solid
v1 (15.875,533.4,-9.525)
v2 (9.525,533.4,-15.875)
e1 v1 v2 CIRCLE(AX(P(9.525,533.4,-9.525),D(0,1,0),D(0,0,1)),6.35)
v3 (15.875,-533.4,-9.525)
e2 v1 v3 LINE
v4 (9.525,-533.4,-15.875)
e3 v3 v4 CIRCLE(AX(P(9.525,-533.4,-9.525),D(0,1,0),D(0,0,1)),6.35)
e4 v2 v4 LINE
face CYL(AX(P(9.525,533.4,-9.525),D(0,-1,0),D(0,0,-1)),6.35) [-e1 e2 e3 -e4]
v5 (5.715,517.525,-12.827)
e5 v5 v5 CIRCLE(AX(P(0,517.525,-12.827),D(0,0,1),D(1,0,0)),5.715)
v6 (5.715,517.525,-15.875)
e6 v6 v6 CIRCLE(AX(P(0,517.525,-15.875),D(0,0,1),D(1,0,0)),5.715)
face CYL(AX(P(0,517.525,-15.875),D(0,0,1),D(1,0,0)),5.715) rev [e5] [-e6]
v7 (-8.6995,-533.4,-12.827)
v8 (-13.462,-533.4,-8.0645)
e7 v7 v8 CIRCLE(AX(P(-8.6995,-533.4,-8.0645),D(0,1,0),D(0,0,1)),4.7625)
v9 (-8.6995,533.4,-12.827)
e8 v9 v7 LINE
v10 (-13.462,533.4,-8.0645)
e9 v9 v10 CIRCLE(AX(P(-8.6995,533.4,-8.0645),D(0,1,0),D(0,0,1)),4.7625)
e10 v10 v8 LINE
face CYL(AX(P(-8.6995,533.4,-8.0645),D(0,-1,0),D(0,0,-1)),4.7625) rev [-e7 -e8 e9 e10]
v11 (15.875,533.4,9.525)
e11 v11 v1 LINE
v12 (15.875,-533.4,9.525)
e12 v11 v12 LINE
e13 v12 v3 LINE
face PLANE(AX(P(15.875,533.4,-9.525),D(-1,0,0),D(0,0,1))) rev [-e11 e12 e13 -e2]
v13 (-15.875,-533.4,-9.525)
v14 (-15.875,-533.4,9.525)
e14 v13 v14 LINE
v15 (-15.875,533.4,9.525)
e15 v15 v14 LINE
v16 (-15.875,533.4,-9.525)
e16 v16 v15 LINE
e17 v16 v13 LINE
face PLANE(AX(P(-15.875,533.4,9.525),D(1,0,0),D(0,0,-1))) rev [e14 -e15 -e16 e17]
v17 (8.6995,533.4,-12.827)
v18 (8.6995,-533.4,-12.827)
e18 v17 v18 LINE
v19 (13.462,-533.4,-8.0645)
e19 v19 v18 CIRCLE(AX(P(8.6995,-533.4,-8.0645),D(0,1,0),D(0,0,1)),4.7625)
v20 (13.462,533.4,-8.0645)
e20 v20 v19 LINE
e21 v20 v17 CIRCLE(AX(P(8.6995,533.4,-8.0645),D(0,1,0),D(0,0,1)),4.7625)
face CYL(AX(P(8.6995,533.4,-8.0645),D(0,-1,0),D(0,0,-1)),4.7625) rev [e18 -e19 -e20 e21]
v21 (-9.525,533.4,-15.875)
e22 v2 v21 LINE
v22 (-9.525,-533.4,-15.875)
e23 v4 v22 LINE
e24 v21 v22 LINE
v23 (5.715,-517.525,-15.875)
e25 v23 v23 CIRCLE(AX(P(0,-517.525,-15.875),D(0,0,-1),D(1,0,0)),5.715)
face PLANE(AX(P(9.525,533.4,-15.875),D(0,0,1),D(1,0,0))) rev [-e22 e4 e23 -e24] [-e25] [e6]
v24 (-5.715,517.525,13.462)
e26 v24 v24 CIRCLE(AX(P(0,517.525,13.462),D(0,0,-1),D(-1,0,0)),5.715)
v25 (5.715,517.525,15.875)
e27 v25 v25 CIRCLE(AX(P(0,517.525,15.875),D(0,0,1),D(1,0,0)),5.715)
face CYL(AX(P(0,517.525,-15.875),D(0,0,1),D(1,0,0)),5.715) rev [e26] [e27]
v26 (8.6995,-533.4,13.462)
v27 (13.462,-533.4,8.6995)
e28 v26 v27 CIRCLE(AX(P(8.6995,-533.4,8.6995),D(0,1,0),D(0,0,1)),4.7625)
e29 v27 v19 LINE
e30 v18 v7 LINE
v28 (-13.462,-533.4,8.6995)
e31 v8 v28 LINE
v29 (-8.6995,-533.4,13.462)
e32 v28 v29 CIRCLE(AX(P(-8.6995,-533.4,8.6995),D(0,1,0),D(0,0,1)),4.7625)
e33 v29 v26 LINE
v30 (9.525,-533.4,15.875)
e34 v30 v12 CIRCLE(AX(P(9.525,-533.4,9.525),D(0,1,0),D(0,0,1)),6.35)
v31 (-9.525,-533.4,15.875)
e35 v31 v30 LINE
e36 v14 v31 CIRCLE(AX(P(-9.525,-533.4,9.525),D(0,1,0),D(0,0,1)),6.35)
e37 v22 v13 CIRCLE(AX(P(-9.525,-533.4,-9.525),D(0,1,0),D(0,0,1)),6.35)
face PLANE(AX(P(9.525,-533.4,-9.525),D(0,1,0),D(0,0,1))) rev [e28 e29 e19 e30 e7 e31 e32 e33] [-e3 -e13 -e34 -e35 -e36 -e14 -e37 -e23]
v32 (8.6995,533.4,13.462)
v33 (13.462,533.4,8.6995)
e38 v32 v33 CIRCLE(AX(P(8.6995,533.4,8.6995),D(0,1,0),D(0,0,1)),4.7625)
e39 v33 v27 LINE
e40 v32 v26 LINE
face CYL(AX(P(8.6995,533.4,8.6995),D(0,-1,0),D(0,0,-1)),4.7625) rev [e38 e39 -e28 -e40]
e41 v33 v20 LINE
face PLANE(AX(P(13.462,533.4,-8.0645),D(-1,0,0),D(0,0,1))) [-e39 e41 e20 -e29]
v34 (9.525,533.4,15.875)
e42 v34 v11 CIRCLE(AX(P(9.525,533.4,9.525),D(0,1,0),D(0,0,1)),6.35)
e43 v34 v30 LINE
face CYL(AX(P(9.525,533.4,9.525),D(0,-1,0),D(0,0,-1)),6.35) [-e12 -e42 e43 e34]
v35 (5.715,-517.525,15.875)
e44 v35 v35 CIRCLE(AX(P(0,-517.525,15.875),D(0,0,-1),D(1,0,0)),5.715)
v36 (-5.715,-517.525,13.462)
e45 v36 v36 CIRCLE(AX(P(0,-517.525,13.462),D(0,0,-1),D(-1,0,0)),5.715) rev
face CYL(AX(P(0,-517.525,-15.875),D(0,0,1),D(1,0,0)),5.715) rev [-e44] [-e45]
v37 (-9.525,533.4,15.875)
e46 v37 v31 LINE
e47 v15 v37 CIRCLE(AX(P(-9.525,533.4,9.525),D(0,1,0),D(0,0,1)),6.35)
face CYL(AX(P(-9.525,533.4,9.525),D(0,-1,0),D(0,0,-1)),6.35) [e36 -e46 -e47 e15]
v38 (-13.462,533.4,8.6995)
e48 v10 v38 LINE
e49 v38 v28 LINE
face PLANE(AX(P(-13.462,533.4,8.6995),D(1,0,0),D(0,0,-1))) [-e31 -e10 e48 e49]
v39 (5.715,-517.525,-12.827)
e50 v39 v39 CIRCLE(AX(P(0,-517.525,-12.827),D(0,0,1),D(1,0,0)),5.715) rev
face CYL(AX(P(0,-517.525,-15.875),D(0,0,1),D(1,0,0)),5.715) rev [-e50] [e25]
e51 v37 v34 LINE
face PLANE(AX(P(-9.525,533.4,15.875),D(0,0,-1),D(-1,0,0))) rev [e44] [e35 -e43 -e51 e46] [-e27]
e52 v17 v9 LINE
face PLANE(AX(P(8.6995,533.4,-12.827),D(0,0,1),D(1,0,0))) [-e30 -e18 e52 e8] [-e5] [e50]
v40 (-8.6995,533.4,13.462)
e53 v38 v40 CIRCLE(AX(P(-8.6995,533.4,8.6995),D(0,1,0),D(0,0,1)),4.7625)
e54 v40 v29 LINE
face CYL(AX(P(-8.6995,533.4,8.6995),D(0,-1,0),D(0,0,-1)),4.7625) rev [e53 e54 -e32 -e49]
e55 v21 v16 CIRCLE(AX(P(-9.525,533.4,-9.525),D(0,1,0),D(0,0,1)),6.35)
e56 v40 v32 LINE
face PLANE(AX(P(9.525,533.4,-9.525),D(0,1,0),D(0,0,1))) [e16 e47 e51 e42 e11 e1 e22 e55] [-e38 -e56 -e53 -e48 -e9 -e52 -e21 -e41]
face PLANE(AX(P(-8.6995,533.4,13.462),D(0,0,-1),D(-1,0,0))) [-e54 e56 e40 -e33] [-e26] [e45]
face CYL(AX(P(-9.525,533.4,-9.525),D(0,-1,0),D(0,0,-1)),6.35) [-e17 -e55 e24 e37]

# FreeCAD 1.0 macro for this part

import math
import FreeCAD as App
import Part
import Sketcher

V = App.Vector
Q = App.Units.Quantity

doc = App.newDocument("Part")
params = doc.addObject("Spreadsheet::Sheet", "Params")
for row, (alias, value) in enumerate([
    ("sketch1_radius", "0.25 in"),
    ("sketch1_radius2", "0.1875 in"),
    ("sketch1_width", "0.75 in"),
    ("sketch1_height", "0.66 in"),
    ("sketch1_width2", "0.685 in"),
    ("pad1_length", "42 in"),
    ("sketch2_diameter", "0.45 in"),
], start=1):
    params.set(f"A{row}", alias)
    params.set(f"B{row}", "=" + value)
    params.setAlias(f"B{row}", alias)

body = doc.addObject("PartDesign::Body", "Body")

sketch1 = body.newObject("Sketcher::SketchObject", "Sketch")
sketch1.AttachmentSupport = (doc.getObject("XZ_Plane"), [""])
sketch1.MapMode = "FlatFace"
sketch1.addGeometry([
    Part.LineSegment(V(-9.5, 15.9, 0), V(9.5, 15.9, 0)),
    Part.ArcOfCircle(Part.Circle(V(9.5, 9.5, 0), V(0, 0, 1), 6.3), math.radians(0), math.radians(90)),
    Part.LineSegment(V(15.9, 9.5, 0), V(15.9, -9.5, 0)),
    Part.ArcOfCircle(Part.Circle(V(9.5, -9.5, 0), V(0, 0, 1), 6.3), math.radians(-90), math.radians(0)),
    Part.LineSegment(V(9.5, -15.9, 0), V(-9.5, -15.9, 0)),
    Part.ArcOfCircle(Part.Circle(V(-9.5, -9.5, 0), V(0, 0, 1), 6.3), math.radians(180), math.radians(270)),
    Part.LineSegment(V(-15.9, -9.5, 0), V(-15.9, 9.5, 0)),
    Part.ArcOfCircle(Part.Circle(V(-9.5, 9.5, 0), V(0, 0, 1), 6.3), math.radians(90), math.radians(180)),
    Part.LineSegment(V(8.7, 13.5, 0), V(-8.7, 13.5, 0)),
    Part.ArcOfCircle(Part.Circle(V(-8.7, 8.7, 0), V(0, 0, 1), 4.8), math.radians(90), math.radians(180)),
    Part.LineSegment(V(-13.5, 8.7, 0), V(-13.5, -8.1, 0)),
    Part.ArcOfCircle(Part.Circle(V(-8.7, -8.1, 0), V(0, 0, 1), 4.8), math.radians(-180), math.radians(-90)),
    Part.LineSegment(V(-8.7, -12.8, 0), V(8.7, -12.8, 0)),
    Part.ArcOfCircle(Part.Circle(V(8.7, -8.1, 0), V(0, 0, 1), 4.8), math.radians(-90), math.radians(0)),
    Part.LineSegment(V(13.5, -8.1, 0), V(13.5, 8.7, 0)),
    Part.ArcOfCircle(Part.Circle(V(8.7, 8.7, 0), V(0, 0, 1), 4.8), math.radians(0), math.radians(90)),
], False)
sketch1.addConstraint([
    Sketcher.Constraint("Tangent", 0, 2, 1, 2),
    Sketcher.Constraint("Tangent", 1, 1, 2, 1),
    Sketcher.Constraint("Tangent", 2, 2, 3, 2),
    Sketcher.Constraint("Tangent", 3, 1, 4, 1),
    Sketcher.Constraint("Tangent", 4, 2, 5, 2),
    Sketcher.Constraint("Tangent", 5, 1, 6, 1),
    Sketcher.Constraint("Tangent", 6, 2, 7, 2),
    Sketcher.Constraint("Tangent", 7, 1, 0, 1),
    Sketcher.Constraint("Tangent", 8, 2, 9, 1),
    Sketcher.Constraint("Tangent", 9, 2, 10, 1),
    Sketcher.Constraint("Tangent", 10, 2, 11, 1),
    Sketcher.Constraint("Tangent", 11, 2, 12, 1),
    Sketcher.Constraint("Tangent", 12, 2, 13, 1),
    Sketcher.Constraint("Tangent", 13, 2, 14, 1),
    Sketcher.Constraint("Tangent", 14, 2, 15, 1),
    Sketcher.Constraint("Tangent", 15, 2, 8, 1),
    Sketcher.Constraint("Horizontal", 0),
    Sketcher.Constraint("Vertical", 2),
    Sketcher.Constraint("Horizontal", 4),
    Sketcher.Constraint("Vertical", 6),
    Sketcher.Constraint("Horizontal", 8),
    Sketcher.Constraint("Vertical", 10),
    Sketcher.Constraint("Horizontal", 12),
    Sketcher.Constraint("Vertical", 14),
    Sketcher.Constraint("Equal", 1, 3),
    Sketcher.Constraint("Equal", 3, 5),
    Sketcher.Constraint("Equal", 5, 7),
    Sketcher.Constraint("Equal", 9, 11),
    Sketcher.Constraint("Equal", 11, 13),
    Sketcher.Constraint("Equal", 13, 15),
    Sketcher.Constraint("Symmetric", 1, 3, 5, 3, -1, 1),
    Sketcher.Constraint("Equal", 4, 2),
    Sketcher.Constraint("Radius", 1, Q("0.25 in")),
    Sketcher.Constraint("Radius", 9, Q("0.1875 in")),
    Sketcher.Constraint("DistanceX", 0, 1, 0, 2, Q("0.75 in")),
    Sketcher.Constraint("DistanceY", 10, 2, 10, 1, Q("0.66 in")),
    Sketcher.Constraint("DistanceX", 8, 2, 8, 1, Q("0.685 in")),
    Sketcher.Constraint("DistanceY", -1, 1, 8, 2, Q("0.53 in")),
    Sketcher.Constraint("DistanceX", 9, 2, -1, 1, Q("0.53 in")),
])
sketch1.setExpression("Constraints[32]", "Params.sketch1_radius")
sketch1.setExpression("Constraints[33]", "Params.sketch1_radius2")
sketch1.setExpression("Constraints[34]", "Params.sketch1_width")
sketch1.setExpression("Constraints[35]", "Params.sketch1_height")
sketch1.setExpression("Constraints[36]", "Params.sketch1_width2")
pad1 = body.newObject("PartDesign::Pad", "Pad")
pad1.Profile = sketch1
pad1.setExpression("Length", "Params.pad1_length")
pad1.Midplane = True

sketch2 = body.newObject("Sketcher::SketchObject", "Sketch001")
sketch2.AttachmentSupport = (doc.getObject("XY_Plane"), [""])
sketch2.MapMode = "FlatFace"
sketch2.AttachmentOffset = App.Placement(V(0, 0, 0.625 * 25.4), App.Rotation())
sketch2.addGeometry(Part.Circle(V(0, 518, 0), V(0, 0, 1), 6), False)
sketch2.addConstraint([
    Sketcher.Constraint("PointOnObject", 0, 3, -2),
    Sketcher.Constraint("Diameter", 0, Q("0.45 in")),
    Sketcher.Constraint("DistanceY", -1, 1, 0, 3, Q("20.375 in")),
])
sketch2.setExpression("Constraints[1]", "Params.sketch2_diameter")
pocket1 = body.newObject("PartDesign::Pocket", "Pocket")
pocket1.Profile = sketch2
pocket1.Type = "ThroughAll"
doc.recompute()

mirrored = body.newObject("PartDesign::Mirrored", "Mirrored")
mirrored.Originals = [pocket1]
mirrored.MirrorPlane = (doc.getObject("XZ_Plane"), [""])
body.Tip = mirrored

doc.recompute()
